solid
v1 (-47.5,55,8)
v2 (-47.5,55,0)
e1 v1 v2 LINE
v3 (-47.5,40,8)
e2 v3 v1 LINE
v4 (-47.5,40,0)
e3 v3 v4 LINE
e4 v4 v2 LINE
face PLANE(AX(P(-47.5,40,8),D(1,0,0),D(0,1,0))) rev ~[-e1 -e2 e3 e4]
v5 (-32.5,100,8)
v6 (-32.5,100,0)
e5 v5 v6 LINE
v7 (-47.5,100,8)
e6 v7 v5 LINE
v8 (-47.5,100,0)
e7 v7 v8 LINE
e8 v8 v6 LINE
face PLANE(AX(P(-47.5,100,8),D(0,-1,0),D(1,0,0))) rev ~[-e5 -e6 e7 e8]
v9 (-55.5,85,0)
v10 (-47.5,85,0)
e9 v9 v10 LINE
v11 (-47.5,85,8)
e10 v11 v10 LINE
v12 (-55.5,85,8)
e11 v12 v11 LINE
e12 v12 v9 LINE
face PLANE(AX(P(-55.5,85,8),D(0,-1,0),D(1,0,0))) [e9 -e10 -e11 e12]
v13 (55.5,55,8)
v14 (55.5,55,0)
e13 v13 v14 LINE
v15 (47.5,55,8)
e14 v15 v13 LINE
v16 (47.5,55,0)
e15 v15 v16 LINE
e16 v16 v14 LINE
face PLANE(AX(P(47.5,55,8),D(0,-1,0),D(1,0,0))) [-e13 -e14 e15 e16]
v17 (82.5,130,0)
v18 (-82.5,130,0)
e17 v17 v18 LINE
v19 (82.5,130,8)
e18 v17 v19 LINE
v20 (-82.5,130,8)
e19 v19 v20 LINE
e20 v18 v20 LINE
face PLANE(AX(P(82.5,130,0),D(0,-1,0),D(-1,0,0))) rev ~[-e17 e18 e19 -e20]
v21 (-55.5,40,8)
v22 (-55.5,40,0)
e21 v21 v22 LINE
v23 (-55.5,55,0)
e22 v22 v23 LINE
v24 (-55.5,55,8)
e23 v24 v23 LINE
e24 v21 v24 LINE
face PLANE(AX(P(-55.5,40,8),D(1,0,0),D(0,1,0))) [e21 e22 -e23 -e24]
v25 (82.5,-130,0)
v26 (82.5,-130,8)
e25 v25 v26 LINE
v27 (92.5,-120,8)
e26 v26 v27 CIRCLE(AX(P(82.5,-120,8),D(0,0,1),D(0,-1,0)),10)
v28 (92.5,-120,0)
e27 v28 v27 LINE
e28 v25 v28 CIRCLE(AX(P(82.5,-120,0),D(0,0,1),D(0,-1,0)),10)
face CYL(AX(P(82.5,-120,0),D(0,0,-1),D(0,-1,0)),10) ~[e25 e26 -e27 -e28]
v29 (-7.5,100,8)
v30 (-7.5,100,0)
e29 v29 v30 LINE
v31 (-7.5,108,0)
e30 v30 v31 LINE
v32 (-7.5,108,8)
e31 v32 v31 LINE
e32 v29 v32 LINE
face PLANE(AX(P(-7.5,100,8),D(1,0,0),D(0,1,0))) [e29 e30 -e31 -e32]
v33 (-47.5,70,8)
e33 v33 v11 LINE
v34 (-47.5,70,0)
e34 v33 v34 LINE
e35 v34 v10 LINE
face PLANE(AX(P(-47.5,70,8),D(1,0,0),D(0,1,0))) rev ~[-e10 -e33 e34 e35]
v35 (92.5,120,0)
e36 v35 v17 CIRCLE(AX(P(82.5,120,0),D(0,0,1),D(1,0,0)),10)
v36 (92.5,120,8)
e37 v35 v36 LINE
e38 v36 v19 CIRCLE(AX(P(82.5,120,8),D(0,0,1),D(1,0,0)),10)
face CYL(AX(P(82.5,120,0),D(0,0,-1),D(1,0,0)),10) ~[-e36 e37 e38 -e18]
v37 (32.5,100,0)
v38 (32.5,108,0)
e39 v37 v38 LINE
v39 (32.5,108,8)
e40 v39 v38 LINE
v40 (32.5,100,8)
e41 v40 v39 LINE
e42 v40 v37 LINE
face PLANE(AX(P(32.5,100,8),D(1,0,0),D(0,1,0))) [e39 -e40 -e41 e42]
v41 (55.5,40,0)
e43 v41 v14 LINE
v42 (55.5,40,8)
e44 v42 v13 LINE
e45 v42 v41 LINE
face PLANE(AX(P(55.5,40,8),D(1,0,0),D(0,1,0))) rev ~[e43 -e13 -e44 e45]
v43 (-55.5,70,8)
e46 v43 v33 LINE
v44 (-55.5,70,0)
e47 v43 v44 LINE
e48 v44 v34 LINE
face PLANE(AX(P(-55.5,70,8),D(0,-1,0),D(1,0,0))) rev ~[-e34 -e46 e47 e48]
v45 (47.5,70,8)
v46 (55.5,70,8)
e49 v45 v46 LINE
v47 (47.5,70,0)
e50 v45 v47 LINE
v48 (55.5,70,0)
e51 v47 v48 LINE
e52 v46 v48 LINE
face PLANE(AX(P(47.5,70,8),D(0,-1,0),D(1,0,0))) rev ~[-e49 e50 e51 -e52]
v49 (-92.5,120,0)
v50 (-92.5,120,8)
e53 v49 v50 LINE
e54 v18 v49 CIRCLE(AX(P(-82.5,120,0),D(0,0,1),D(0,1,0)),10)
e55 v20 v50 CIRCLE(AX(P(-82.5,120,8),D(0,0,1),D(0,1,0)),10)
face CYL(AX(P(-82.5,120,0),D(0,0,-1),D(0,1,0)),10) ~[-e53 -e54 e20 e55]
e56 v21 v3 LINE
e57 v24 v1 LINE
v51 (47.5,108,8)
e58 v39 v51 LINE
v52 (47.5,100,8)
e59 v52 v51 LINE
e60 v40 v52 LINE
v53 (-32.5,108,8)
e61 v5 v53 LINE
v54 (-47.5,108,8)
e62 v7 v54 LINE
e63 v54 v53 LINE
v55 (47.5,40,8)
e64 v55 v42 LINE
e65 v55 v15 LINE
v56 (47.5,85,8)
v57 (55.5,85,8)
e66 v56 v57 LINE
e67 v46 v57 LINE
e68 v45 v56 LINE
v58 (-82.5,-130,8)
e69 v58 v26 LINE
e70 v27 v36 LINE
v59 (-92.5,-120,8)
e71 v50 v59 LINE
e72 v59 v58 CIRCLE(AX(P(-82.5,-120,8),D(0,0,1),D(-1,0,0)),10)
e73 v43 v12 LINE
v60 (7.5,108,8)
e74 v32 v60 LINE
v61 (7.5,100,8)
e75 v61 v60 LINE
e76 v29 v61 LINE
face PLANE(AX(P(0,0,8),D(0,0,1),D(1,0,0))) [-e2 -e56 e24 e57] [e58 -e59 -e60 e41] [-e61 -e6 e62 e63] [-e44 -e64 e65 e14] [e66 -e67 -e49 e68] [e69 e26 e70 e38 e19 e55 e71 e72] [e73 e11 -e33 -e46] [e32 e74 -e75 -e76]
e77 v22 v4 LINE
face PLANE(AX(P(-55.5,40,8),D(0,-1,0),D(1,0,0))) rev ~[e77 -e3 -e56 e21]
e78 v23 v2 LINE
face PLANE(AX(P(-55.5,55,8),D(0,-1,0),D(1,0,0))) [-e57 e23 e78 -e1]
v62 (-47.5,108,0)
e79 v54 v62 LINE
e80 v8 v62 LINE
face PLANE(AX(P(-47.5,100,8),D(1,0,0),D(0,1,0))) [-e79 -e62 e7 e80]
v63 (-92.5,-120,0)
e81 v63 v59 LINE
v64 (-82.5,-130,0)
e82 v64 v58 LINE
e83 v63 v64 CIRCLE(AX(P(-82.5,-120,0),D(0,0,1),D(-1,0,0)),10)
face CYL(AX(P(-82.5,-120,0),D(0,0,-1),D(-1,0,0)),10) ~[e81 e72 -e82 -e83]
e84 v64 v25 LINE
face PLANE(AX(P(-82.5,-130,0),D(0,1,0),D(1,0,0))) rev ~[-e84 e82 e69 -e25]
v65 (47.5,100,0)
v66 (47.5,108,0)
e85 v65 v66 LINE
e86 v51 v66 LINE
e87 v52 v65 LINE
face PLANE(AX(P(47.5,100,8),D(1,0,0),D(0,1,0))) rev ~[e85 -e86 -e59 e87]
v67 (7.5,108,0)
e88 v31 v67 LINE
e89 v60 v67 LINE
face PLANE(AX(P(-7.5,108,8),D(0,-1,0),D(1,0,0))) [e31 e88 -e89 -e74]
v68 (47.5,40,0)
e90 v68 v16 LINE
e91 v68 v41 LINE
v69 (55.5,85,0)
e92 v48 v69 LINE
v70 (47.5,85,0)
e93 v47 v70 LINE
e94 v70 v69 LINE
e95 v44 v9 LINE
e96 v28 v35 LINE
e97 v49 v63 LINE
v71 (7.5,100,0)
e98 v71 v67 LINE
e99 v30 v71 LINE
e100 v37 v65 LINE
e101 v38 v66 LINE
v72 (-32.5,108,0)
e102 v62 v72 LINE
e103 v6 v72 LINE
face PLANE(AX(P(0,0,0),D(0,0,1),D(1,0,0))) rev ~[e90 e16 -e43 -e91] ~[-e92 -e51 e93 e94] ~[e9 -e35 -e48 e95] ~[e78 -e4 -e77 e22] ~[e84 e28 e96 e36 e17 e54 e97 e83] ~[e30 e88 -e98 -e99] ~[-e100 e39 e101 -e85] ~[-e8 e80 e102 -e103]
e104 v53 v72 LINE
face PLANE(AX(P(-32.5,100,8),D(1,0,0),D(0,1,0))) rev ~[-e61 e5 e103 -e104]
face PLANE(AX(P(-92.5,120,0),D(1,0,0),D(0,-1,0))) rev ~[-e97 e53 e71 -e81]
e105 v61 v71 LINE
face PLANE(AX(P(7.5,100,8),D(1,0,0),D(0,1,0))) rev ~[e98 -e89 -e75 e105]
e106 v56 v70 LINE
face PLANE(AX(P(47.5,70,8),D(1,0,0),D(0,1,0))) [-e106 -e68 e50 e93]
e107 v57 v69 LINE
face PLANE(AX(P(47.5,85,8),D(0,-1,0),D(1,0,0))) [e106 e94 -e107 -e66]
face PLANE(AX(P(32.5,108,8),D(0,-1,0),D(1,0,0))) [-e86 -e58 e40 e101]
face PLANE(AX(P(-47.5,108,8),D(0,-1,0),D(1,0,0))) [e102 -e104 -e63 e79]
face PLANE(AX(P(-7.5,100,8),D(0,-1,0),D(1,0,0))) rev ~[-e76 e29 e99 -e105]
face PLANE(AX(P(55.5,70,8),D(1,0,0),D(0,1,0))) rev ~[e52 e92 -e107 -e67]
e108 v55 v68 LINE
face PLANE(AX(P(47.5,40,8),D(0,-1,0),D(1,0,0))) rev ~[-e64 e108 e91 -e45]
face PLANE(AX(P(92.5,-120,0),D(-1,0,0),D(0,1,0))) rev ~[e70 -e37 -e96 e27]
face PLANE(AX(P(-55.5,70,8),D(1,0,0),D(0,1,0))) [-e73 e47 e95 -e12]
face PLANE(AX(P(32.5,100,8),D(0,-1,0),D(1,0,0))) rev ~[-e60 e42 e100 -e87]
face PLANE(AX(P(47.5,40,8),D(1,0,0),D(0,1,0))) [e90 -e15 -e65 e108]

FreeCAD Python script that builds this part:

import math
import FreeCAD as App
import Part
import Sketcher

V = App.Vector

doc = App.newDocument("Part")
body = doc.addObject("PartDesign::Body", "Body")

sketch1 = body.newObject("Sketcher::SketchObject", "Sketch")
sketch1.AttachmentSupport = (doc.getObject("XY_Plane"), [""])
sketch1.MapMode = "FlatFace"
sketch1.addGeometry([
    Part.LineSegment(V(-82, -130, 0), V(82, -130, 0)),
    Part.ArcOfCircle(Part.Circle(V(82, -120, 0), V(0, 0, 1), 10), math.radians(-90), math.radians(0)),
    Part.LineSegment(V(92, -120, 0), V(92, 120, 0)),
    Part.ArcOfCircle(Part.Circle(V(82, 120, 0), V(0, 0, 1), 10), math.radians(0), math.radians(90)),
    Part.LineSegment(V(82, 130, 0), V(-82, 130, 0)),
    Part.ArcOfCircle(Part.Circle(V(-82, 120, 0), V(0, 0, 1), 10), math.radians(90), math.radians(180)),
    Part.LineSegment(V(-92, 120, 0), V(-92, -120, 0)),
    Part.ArcOfCircle(Part.Circle(V(-82, -120, 0), V(0, 0, 1), 10), math.radians(180), math.radians(270)),
], False)
sketch1.addConstraint([
    Sketcher.Constraint("Tangent", 0, 2, 1, 1),
    Sketcher.Constraint("Tangent", 1, 2, 2, 1),
    Sketcher.Constraint("Tangent", 2, 2, 3, 1),
    Sketcher.Constraint("Tangent", 3, 2, 4, 1),
    Sketcher.Constraint("Tangent", 4, 2, 5, 1),
    Sketcher.Constraint("Tangent", 5, 2, 6, 1),
    Sketcher.Constraint("Tangent", 6, 2, 7, 1),
    Sketcher.Constraint("Tangent", 7, 2, 0, 1),
    Sketcher.Constraint("Horizontal", 0),
    Sketcher.Constraint("Vertical", 2),
    Sketcher.Constraint("Horizontal", 4),
    Sketcher.Constraint("Vertical", 6),
    Sketcher.Constraint("Equal", 1, 3),
    Sketcher.Constraint("Equal", 3, 5),
    Sketcher.Constraint("Equal", 5, 7),
    Sketcher.Constraint("Symmetric", 1, 3, 5, 3, -1, 1),
    Sketcher.Constraint("Radius", 1, 10.0),
    Sketcher.Constraint("DistanceX", 0, 1, 0, 2, 165.0),
    Sketcher.Constraint("DistanceY", 2, 1, 2, 2, 240.0),
])
pad1 = body.newObject("PartDesign::Pad", "Pad")
pad1.Profile = sketch1
pad1.Length = 8

sketch2 = body.newObject("Sketcher::SketchObject", "Sketch001")
sketch2.AttachmentSupport = (doc.getObject("XY_Plane"), [""])
sketch2.MapMode = "FlatFace"
sketch2.AttachmentOffset = App.Placement(V(0, 0, 8), App.Rotation())
sketch2.addGeometry([
    Part.LineSegment(V(-8, 108, 0), V(-8, 100, 0)),
    Part.LineSegment(V(-8, 100, 0), V(8, 100, 0)),
    Part.LineSegment(V(8, 100, 0), V(8, 108, 0)),
    Part.LineSegment(V(8, 108, 0), V(-8, 108, 0)),
    Part.LineSegment(V(-48, 108, 0), V(-48, 100, 0)),
    Part.LineSegment(V(-48, 100, 0), V(-32, 100, 0)),
    Part.LineSegment(V(-32, 100, 0), V(-32, 108, 0)),
    Part.LineSegment(V(-32, 108, 0), V(-48, 108, 0)),
    Part.LineSegment(V(32, 108, 0), V(32, 100, 0)),
    Part.LineSegment(V(32, 100, 0), V(48, 100, 0)),
    Part.LineSegment(V(48, 100, 0), V(48, 108, 0)),
    Part.LineSegment(V(48, 108, 0), V(32, 108, 0)),
    Part.LineSegment(V(-56, 55, 0), V(-56, 40, 0)),
    Part.LineSegment(V(-56, 40, 0), V(-48, 40, 0)),
    Part.LineSegment(V(-48, 40, 0), V(-48, 55, 0)),
    Part.LineSegment(V(-48, 55, 0), V(-56, 55, 0)),
    Part.LineSegment(V(-56, 85, 0), V(-56, 70, 0)),
    Part.LineSegment(V(-56, 70, 0), V(-48, 70, 0)),
    Part.LineSegment(V(-48, 70, 0), V(-48, 85, 0)),
    Part.LineSegment(V(-48, 85, 0), V(-56, 85, 0)),
    Part.LineSegment(V(48, 55, 0), V(48, 40, 0)),
    Part.LineSegment(V(48, 40, 0), V(56, 40, 0)),
    Part.LineSegment(V(56, 40, 0), V(56, 55, 0)),
    Part.LineSegment(V(56, 55, 0), V(48, 55, 0)),
    Part.LineSegment(V(48, 85, 0), V(48, 70, 0)),
    Part.LineSegment(V(48, 70, 0), V(56, 70, 0)),
    Part.LineSegment(V(56, 70, 0), V(56, 85, 0)),
    Part.LineSegment(V(56, 85, 0), V(48, 85, 0)),
], False)
sketch2.addConstraint([
    Sketcher.Constraint("Coincident", 0, 2, 1, 1),
    Sketcher.Constraint("Coincident", 1, 2, 2, 1),
    Sketcher.Constraint("Coincident", 2, 2, 3, 1),
    Sketcher.Constraint("Coincident", 3, 2, 0, 1),
    Sketcher.Constraint("Coincident", 4, 2, 5, 1),
    Sketcher.Constraint("Coincident", 5, 2, 6, 1),
    Sketcher.Constraint("Coincident", 6, 2, 7, 1),
    Sketcher.Constraint("Coincident", 7, 2, 4, 1),
    Sketcher.Constraint("Coincident", 8, 2, 9, 1),
    Sketcher.Constraint("Coincident", 9, 2, 10, 1),
    Sketcher.Constraint("Coincident", 10, 2, 11, 1),
    Sketcher.Constraint("Coincident", 11, 2, 8, 1),
    Sketcher.Constraint("Coincident", 12, 2, 13, 1),
    Sketcher.Constraint("Coincident", 13, 2, 14, 1),
    Sketcher.Constraint("Coincident", 14, 2, 15, 1),
    Sketcher.Constraint("Coincident", 15, 2, 12, 1),
    Sketcher.Constraint("Coincident", 16, 2, 17, 1),
    Sketcher.Constraint("Coincident", 17, 2, 18, 1),
    Sketcher.Constraint("Coincident", 18, 2, 19, 1),
    Sketcher.Constraint("Coincident", 19, 2, 16, 1),
    Sketcher.Constraint("Coincident", 20, 2, 21, 1),
    Sketcher.Constraint("Coincident", 21, 2, 22, 1),
    Sketcher.Constraint("Coincident", 22, 2, 23, 1),
    Sketcher.Constraint("Coincident", 23, 2, 20, 1),
    Sketcher.Constraint("Coincident", 24, 2, 25, 1),
    Sketcher.Constraint("Coincident", 25, 2, 26, 1),
    Sketcher.Constraint("Coincident", 26, 2, 27, 1),
    Sketcher.Constraint("Coincident", 27, 2, 24, 1),
    Sketcher.Constraint("Vertical", 0),
    Sketcher.Constraint("Horizontal", 1),
    Sketcher.Constraint("Vertical", 2),
    Sketcher.Constraint("Horizontal", 3),
    Sketcher.Constraint("Vertical", 4),
    Sketcher.Constraint("Horizontal", 5),
    Sketcher.Constraint("Vertical", 6),
    Sketcher.Constraint("Horizontal", 7),
    Sketcher.Constraint("Vertical", 8),
    Sketcher.Constraint("Horizontal", 9),
    Sketcher.Constraint("Vertical", 10),
    Sketcher.Constraint("Horizontal", 11),
    Sketcher.Constraint("Vertical", 12),
    Sketcher.Constraint("Horizontal", 13),
    Sketcher.Constraint("Vertical", 14),
    Sketcher.Constraint("Horizontal", 15),
    Sketcher.Constraint("Vertical", 16),
    Sketcher.Constraint("Horizontal", 17),
    Sketcher.Constraint("Vertical", 18),
    Sketcher.Constraint("Horizontal", 19),
    Sketcher.Constraint("Vertical", 20),
    Sketcher.Constraint("Horizontal", 21),
    Sketcher.Constraint("Vertical", 22),
    Sketcher.Constraint("Horizontal", 23),
    Sketcher.Constraint("Vertical", 24),
    Sketcher.Constraint("Horizontal", 25),
    Sketcher.Constraint("Vertical", 26),
    Sketcher.Constraint("Horizontal", 27),
    Sketcher.Constraint("Symmetric", 5, 2, 8, 2, -2),
    Sketcher.Constraint("Symmetric", 7, 2, 10, 2, -2),
    Sketcher.Constraint("Symmetric", 13, 2, 20, 2, -2),
    Sketcher.Constraint("Symmetric", 15, 2, 22, 2, -2),
    Sketcher.Constraint("Symmetric", 17, 2, 24, 2, -2),
    Sketcher.Constraint("Symmetric", 19, 2, 26, 2, -2),
    Sketcher.Constraint("Horizontal", 1, 2, 4, 2),
    Sketcher.Constraint("Horizontal", 3, 2, 6, 2),
    Sketcher.Constraint("Vertical", 7, 2, 13, 2),
    Sketcher.Constraint("Vertical", 15, 2, 16, 2),
    Sketcher.Constraint("Vertical", 14, 2, 17, 2),
    Sketcher.Constraint("Equal", 3, 5),
    Sketcher.Constraint("Equal", 27, 0),
    Sketcher.Constraint("Equal", 11, 12),
    Sketcher.Constraint("Equal", 14, 16),
    Sketcher.Constraint("DistanceX", 1, 1, 1, 2, 15.0),
    Sketcher.Constraint("DistanceX", 13, 1, 13, 2, 8.0),
    Sketcher.Constraint("DistanceY", -1, 1, 0, 2, 100.0),
    Sketcher.Constraint("DistanceY", -1, 1, 12, 2, 40.0),
    Sketcher.Constraint("DistanceY", -1, 1, 16, 2, 70.0),
    Sketcher.Constraint("DistanceX", 4, 2, 0, 2, 40.0),
    Sketcher.Constraint("DistanceX", 1, 2, 8, 2, 25.0),
])
pocket1 = body.newObject("PartDesign::Pocket", "Pocket")
pocket1.Profile = sketch2
pocket1.Type = "ThroughAll"

doc.recompute()
